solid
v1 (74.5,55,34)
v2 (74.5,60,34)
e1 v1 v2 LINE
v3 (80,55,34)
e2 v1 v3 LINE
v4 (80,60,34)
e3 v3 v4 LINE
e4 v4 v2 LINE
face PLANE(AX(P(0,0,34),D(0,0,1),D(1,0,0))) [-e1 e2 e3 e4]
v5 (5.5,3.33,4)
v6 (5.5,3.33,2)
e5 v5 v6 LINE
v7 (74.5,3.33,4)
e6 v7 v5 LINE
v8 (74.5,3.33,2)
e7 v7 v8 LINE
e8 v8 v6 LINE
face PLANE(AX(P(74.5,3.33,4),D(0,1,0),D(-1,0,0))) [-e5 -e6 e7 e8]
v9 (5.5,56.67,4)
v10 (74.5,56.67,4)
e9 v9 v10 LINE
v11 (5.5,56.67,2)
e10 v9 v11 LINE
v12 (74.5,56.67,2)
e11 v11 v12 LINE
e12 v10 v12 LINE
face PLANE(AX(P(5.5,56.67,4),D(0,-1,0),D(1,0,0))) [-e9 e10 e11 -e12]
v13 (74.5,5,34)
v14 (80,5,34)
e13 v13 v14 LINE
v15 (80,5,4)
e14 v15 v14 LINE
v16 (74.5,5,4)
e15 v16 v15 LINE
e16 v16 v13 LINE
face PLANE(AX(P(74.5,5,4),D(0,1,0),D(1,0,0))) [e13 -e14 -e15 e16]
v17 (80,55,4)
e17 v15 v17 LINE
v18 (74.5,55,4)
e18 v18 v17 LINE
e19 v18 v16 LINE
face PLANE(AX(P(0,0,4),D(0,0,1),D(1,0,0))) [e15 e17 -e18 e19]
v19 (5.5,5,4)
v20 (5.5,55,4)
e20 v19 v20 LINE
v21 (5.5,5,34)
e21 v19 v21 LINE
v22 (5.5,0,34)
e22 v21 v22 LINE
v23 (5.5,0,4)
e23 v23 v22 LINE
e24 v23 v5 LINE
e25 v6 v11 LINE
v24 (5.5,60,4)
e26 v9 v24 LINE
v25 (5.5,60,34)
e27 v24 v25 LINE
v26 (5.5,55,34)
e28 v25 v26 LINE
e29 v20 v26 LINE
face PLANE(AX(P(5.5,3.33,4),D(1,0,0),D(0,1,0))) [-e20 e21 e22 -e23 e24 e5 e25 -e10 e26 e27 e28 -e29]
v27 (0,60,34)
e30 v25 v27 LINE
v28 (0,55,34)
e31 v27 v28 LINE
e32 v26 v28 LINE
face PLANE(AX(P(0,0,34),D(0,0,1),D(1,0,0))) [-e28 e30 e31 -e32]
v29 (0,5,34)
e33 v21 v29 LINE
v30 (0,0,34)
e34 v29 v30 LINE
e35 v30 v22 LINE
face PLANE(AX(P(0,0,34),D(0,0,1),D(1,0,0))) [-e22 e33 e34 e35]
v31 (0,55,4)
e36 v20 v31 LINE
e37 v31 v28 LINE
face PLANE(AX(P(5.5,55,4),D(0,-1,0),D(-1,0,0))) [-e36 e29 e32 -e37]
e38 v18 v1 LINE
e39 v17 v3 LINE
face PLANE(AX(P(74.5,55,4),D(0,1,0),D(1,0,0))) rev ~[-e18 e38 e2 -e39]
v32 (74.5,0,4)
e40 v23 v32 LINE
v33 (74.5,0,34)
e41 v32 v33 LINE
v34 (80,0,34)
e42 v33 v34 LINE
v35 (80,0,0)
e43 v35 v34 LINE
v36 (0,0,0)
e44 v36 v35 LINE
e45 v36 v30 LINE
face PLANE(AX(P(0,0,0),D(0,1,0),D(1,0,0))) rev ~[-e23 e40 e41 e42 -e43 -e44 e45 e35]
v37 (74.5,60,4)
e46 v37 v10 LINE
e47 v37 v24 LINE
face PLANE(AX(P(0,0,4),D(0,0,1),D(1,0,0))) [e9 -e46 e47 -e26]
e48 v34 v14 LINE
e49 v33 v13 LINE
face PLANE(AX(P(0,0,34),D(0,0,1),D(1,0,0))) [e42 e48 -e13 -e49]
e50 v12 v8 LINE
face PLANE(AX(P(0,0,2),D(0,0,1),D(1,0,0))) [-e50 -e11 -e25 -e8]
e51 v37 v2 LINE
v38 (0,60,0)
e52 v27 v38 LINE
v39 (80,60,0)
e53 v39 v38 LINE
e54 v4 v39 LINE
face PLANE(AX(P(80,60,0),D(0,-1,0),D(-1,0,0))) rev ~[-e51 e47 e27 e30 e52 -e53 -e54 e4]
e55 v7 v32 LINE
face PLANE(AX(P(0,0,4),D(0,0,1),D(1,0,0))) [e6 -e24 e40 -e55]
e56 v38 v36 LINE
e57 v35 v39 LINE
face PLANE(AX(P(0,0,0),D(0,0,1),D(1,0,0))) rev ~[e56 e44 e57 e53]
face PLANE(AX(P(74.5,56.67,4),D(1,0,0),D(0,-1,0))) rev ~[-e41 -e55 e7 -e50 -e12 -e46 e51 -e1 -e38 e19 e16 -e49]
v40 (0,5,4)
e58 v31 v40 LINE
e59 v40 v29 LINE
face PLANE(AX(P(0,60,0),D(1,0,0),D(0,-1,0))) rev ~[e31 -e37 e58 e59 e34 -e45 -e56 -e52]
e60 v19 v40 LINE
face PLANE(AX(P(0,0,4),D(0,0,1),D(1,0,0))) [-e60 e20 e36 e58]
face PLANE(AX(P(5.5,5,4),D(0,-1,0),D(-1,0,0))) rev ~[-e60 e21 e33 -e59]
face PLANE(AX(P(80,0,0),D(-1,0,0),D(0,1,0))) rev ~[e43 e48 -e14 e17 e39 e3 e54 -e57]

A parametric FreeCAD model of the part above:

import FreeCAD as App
import Part
import Sketcher

V = App.Vector
Q = App.Units.Quantity


def add_polygon(sketch, points):
    """Adds a closed chain of lines whose ends are joined by coincident constraints."""
    first, n = sketch.GeometryCount, len(points)
    for a, b in zip(points, points[1:] + points[:1]):
        sketch.addGeometry(Part.LineSegment(App.Vector(*a, 0), App.Vector(*b, 0)), False)
    for i in range(n):
        sketch.addConstraint(Sketcher.Constraint("Coincident", first + i, 2, first + (i + 1) % n, 1))

doc = App.newDocument("Part")
params = doc.addObject("Spreadsheet::Sheet", "Params")
for row, (alias, value) in enumerate([
    ("sketch1_width", "80 mm"),
    ("sketch1_height", "60 mm"),
    ("pad1_length", "4 mm"),
    ("sketch2_width", "69 mm"),
    ("sketch2_height", "53.34 mm"),
    ("pocket1_length", "2 mm"),
    ("sketch3_height", "5 mm"),
    ("sketch3_width", "5.5 mm"),
    ("pad2_length", "30 mm"),
], start=1):
    params.set(f"A{row}", alias)
    params.set(f"B{row}", "=" + value)
    params.setAlias(f"B{row}", alias)

body = doc.addObject("PartDesign::Body", "Body")

sketch1 = doc.addObject("Sketcher::SketchObject", "Sketch")
body.addObject(sketch1)
sketch1.AttachmentSupport = (doc.XY_Plane, [""])
sketch1.MapMode = "FlatFace"
add_polygon(sketch1, [(0, 60), (0, 0), (80, 0), (80, 60)])
sketch1.addConstraint([
    Sketcher.Constraint("Vertical", 0),
    Sketcher.Constraint("Horizontal", 1),
    Sketcher.Constraint("Vertical", 2),
    Sketcher.Constraint("Horizontal", 3),
    Sketcher.Constraint("Coincident", 0, 2, -1, 1),
    Sketcher.Constraint("DistanceX", 1, 1, 1, 2, Q("80 mm")),
    Sketcher.Constraint("DistanceY", 0, 2, 0, 1, Q("60 mm")),
])
sketch1.setExpression("Constraints[9]", "Params.sketch1_width")
sketch1.setExpression("Constraints[10]", "Params.sketch1_height")
pad1 = doc.addObject("PartDesign::Pad", "Pad")
body.addObject(pad1)
pad1.Profile = sketch1
pad1.setExpression("Length", "Params.pad1_length")

sketch2 = doc.addObject("Sketcher::SketchObject", "Sketch001")
body.addObject(sketch2)
sketch2.AttachmentSupport = (doc.XY_Plane, [""])
sketch2.MapMode = "FlatFace"
sketch2.AttachmentOffset = App.Placement(V(0, 0, 4), App.Rotation())
add_polygon(sketch2, [(74, 57), (6, 57), (6, 3), (74, 3)])
sketch2.addConstraint([
    Sketcher.Constraint("Horizontal", 0),
    Sketcher.Constraint("Vertical", 1),
    Sketcher.Constraint("Horizontal", 2),
    Sketcher.Constraint("Vertical", 3),
    Sketcher.Constraint("DistanceX", 0, 2, 0, 1, Q("69 mm")),
    Sketcher.Constraint("DistanceY", 1, 2, 1, 1, Q("53.34 mm")),
    Sketcher.Constraint("DistanceX", -1, 1, 0, 2, Q("5.5 mm")),
    Sketcher.Constraint("DistanceY", -1, 1, 1, 2, Q("3.33 mm")),
])
sketch2.setExpression("Constraints[8]", "Params.sketch2_width")
sketch2.setExpression("Constraints[9]", "Params.sketch2_height")
pocket1 = doc.addObject("PartDesign::Pocket", "Pocket")
body.addObject(pocket1)
pocket1.Profile = sketch2
pocket1.setExpression("Length", "Params.pocket1_length")

sketch3 = doc.addObject("Sketcher::SketchObject", "Sketch002")
body.addObject(sketch3)
sketch3.AttachmentSupport = (doc.XY_Plane, [""])
sketch3.MapMode = "FlatFace"
sketch3.AttachmentOffset = App.Placement(V(0, 0, 4), App.Rotation())
add_polygon(sketch3, [(80, 55), (80, 60), (74, 60), (74, 55)])
add_polygon(sketch3, [(6, 55), (6, 60), (0, 60), (0, 55)])
add_polygon(sketch3, [(80, 0), (80, 5), (74, 5), (74, 0)])
add_polygon(sketch3, [(6, 5), (0, 5), (0, 0), (6, 0)])
sketch3.addConstraint([
    Sketcher.Constraint("Vertical", 0),
    Sketcher.Constraint("Horizontal", 1),
    Sketcher.Constraint("Vertical", 2),
    Sketcher.Constraint("Horizontal", 3),
    Sketcher.Constraint("Vertical", 4),
    Sketcher.Constraint("Horizontal", 5),
    Sketcher.Constraint("Vertical", 6),
    Sketcher.Constraint("Horizontal", 7),
    Sketcher.Constraint("Vertical", 8),
    Sketcher.Constraint("Horizontal", 9),
    Sketcher.Constraint("Vertical", 10),
    Sketcher.Constraint("Horizontal", 11),
    Sketcher.Constraint("Horizontal", 12),
    Sketcher.Constraint("Vertical", 13),
    Sketcher.Constraint("Horizontal", 14),
    Sketcher.Constraint("Vertical", 15),
    Sketcher.Constraint("Coincident", 13, 2, -1, 1),
    Sketcher.Constraint("PointOnObject", 5, 2, -2),
    Sketcher.Constraint("PointOnObject", 10, 2, -1),
    Sketcher.Constraint("Horizontal", 1, 2, 4, 2),
    Sketcher.Constraint("Horizontal", 3, 2, 6, 2),
    Sketcher.Constraint("Horizontal", 9, 2, 12, 2),
    Sketcher.Constraint("Vertical", 3, 2, 8, 2),
    Sketcher.Constraint("Vertical", 2, 2, 9, 2),
    Sketcher.Constraint("Vertical", 7, 2, 14, 2),
    Sketcher.Constraint("Equal", 3, 5),
    Sketcher.Constraint("Equal", 6, 8),
    Sketcher.Constraint("DistanceY", 0, 1, 0, 2, Q("5 mm")),
    Sketcher.Constraint("DistanceX", 1, 2, 1, 1, Q("5.5 mm")),
    Sketcher.Constraint("DistanceX", -1, 1, 0, 2, Q("80 mm")),
    Sketcher.Constraint("DistanceY", -1, 1, 0, 2, Q("60 mm")),
])
sketch3.setExpression("Constraints[43]", "Params.sketch3_height")
sketch3.setExpression("Constraints[44]", "Params.sketch3_width")
pad2 = doc.addObject("PartDesign::Pad", "Pad001")
body.addObject(pad2)
pad2.Profile = sketch3
pad2.setExpression("Length", "Params.pad2_length")

doc.recompute()
